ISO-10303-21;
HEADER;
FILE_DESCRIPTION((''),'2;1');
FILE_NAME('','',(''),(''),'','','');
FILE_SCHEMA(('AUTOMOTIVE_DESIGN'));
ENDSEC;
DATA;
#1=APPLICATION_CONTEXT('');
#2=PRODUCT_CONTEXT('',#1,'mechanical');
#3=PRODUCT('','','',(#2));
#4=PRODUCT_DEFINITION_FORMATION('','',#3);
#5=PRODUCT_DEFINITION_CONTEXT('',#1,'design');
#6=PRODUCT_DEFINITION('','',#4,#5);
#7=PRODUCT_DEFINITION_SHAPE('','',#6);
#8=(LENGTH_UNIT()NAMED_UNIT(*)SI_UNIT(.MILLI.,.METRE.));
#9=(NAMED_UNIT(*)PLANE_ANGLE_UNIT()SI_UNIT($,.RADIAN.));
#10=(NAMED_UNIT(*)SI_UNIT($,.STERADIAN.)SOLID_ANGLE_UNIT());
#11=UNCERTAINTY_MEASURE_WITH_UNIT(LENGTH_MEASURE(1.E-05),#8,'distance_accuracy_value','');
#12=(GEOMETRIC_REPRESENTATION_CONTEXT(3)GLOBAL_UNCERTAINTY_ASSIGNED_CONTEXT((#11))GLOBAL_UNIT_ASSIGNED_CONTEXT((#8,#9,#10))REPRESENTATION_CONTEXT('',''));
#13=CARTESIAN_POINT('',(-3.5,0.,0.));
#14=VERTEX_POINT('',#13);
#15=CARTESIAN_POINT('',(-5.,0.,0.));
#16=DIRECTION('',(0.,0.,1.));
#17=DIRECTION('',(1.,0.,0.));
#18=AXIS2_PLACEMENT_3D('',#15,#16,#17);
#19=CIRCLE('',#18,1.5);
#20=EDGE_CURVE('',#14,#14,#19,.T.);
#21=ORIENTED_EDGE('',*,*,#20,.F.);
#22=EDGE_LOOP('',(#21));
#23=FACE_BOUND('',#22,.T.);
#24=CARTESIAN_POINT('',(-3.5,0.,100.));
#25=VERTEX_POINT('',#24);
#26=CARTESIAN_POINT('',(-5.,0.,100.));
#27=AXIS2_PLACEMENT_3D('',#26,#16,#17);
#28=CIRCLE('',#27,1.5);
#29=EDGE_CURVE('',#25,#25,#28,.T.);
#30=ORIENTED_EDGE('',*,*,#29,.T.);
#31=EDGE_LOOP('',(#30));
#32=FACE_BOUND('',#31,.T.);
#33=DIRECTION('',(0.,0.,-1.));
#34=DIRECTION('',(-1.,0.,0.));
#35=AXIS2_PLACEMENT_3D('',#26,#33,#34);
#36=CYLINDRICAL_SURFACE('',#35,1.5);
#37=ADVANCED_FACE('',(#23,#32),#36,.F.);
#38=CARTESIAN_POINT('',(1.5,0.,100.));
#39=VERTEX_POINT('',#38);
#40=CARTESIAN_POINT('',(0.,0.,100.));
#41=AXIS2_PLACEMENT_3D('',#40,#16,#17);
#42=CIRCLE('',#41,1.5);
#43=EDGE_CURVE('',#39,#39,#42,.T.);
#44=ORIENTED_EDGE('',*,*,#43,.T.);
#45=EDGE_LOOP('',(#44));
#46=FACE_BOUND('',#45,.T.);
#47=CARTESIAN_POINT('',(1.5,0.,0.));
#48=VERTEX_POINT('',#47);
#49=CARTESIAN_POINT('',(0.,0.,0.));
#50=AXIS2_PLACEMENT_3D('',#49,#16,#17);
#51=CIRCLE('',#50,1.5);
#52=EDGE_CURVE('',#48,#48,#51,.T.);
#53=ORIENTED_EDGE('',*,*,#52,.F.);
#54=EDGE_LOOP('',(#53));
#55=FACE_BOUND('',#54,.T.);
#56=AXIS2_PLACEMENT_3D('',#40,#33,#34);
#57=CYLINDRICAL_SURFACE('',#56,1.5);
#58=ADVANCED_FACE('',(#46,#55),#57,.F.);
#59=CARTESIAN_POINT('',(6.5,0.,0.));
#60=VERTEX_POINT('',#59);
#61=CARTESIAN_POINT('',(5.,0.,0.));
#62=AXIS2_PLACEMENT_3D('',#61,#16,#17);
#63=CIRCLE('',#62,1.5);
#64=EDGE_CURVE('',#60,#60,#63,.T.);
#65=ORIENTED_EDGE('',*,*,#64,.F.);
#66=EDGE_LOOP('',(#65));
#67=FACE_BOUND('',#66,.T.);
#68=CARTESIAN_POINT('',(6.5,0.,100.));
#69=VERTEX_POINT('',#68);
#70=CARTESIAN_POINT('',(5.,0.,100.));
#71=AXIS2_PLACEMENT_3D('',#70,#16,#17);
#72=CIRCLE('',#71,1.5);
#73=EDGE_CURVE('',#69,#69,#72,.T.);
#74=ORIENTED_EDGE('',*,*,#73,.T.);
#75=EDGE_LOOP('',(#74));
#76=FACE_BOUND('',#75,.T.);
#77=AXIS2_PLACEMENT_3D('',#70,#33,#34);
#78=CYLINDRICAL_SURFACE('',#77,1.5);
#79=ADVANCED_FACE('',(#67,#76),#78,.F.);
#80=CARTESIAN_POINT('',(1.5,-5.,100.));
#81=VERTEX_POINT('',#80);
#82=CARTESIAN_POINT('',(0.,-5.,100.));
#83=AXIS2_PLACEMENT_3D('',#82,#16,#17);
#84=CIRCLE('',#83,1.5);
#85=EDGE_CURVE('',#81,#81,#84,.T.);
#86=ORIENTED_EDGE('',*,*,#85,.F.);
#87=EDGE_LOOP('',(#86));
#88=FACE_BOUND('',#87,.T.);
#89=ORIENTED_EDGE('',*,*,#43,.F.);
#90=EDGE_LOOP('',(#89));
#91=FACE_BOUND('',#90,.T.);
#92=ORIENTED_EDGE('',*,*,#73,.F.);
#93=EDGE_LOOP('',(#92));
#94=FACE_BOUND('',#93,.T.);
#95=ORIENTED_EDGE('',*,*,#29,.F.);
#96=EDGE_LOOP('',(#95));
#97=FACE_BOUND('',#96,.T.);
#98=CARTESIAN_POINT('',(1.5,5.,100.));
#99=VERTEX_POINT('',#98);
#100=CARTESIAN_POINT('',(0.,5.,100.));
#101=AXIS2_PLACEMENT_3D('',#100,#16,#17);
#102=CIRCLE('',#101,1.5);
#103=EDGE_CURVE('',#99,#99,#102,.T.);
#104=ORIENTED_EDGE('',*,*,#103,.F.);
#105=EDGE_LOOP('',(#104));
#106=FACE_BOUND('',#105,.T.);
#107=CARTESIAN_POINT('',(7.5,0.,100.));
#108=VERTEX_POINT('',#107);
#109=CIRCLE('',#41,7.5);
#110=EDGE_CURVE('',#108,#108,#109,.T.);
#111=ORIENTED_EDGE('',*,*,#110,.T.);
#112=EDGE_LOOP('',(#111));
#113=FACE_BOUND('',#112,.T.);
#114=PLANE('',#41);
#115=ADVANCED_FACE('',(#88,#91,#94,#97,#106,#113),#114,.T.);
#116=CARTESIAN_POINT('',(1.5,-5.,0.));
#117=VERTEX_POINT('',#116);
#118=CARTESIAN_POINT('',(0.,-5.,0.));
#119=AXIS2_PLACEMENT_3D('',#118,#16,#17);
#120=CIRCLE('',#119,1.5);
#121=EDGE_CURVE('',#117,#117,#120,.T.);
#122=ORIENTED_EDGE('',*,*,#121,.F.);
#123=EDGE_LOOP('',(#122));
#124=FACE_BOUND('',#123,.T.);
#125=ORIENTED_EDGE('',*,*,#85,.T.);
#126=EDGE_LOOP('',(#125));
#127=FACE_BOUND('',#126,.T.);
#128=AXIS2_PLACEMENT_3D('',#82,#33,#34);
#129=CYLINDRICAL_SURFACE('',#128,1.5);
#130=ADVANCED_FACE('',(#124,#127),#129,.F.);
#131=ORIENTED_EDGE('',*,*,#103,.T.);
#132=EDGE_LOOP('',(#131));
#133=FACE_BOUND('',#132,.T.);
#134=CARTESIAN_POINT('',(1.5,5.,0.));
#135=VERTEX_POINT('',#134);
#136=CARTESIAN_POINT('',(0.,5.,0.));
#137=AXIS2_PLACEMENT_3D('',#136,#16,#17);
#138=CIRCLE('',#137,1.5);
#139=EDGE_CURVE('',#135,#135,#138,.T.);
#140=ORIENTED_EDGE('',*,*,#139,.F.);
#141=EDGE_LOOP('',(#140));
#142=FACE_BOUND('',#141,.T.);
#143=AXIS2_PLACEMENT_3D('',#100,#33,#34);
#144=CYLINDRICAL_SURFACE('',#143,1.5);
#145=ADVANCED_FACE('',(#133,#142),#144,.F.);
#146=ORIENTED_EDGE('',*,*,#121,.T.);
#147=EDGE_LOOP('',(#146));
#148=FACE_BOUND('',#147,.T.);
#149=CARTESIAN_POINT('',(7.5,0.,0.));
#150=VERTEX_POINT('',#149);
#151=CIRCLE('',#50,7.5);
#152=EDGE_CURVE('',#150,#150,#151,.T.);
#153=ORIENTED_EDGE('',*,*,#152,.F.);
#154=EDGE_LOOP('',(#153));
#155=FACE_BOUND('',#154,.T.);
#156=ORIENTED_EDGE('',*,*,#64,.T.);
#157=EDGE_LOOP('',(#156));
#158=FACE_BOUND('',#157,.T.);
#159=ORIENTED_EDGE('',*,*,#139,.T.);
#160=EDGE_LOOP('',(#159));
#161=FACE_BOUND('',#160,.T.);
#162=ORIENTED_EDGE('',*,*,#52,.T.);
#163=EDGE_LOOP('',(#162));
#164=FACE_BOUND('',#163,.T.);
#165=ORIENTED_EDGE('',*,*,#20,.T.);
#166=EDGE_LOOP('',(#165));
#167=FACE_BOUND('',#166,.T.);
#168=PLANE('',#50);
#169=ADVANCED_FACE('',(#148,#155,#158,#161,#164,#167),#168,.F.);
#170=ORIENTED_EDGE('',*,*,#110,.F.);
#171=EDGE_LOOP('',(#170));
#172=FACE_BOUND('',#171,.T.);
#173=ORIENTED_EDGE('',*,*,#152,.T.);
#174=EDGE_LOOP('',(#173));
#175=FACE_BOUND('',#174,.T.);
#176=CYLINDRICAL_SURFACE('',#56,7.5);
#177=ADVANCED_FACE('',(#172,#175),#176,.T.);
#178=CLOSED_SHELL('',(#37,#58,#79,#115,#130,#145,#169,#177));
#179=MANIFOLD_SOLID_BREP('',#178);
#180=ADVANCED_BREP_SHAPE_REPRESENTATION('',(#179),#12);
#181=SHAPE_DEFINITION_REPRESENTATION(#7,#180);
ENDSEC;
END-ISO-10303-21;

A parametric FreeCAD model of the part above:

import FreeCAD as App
import Part
import Sketcher

V = App.Vector

doc = App.newDocument("Part")
body = doc.addObject("PartDesign::Body", "Body")

sketch1 = doc.addObject("Sketcher::SketchObject", "Sketch")
body.addObject(sketch1)
sketch1.AttachmentSupport = (doc.XY_Plane, [""])
sketch1.MapMode = "FlatFace"
sketch1.addGeometry([
    Part.Circle(V(0, 0, 0), V(0, 0, 1), 7.5),
    Part.Circle(V(0, -5, 0), V(0, 0, 1), 1.5),
    Part.Circle(V(-5, 0, 0), V(0, 0, 1), 1.5),
    Part.Circle(V(0, 0, 0), V(0, 0, 1), 1.5),
    Part.Circle(V(5, 0, 0), V(0, 0, 1), 1.5),
    Part.Circle(V(0, 5, 0), V(0, 0, 1), 1.5),
], False)
sketch1.addConstraint([
    Sketcher.Constraint("Coincident", 0, 3, -1, 1),
    Sketcher.Constraint("Coincident", 3, 3, -1, 1),
    Sketcher.Constraint("Equal", 1, 2),
    Sketcher.Constraint("Equal", 2, 3),
    Sketcher.Constraint("Equal", 3, 4),
    Sketcher.Constraint("Equal", 4, 5),
    Sketcher.Constraint("Symmetric", 2, 3, 4, 3, -1, 1),
    Sketcher.Constraint("Symmetric", 1, 3, 5, 3, -1, 1),
    Sketcher.Constraint("PointOnObject", 1, 3, -2),
    Sketcher.Constraint("PointOnObject", 2, 3, -1),
    Sketcher.Constraint("Diameter", 0, 15.0),
    Sketcher.Constraint("Diameter", 1, 3.0),
    Sketcher.Constraint("DistanceY", 1, 3, -1, 1, 5.0),
    Sketcher.Constraint("DistanceX", 2, 3, -1, 1, 5.0),
])
pad1 = doc.addObject("PartDesign::Pad", "Pad")
body.addObject(pad1)
pad1.Profile = sketch1
pad1.Length = 100

doc.recompute()
